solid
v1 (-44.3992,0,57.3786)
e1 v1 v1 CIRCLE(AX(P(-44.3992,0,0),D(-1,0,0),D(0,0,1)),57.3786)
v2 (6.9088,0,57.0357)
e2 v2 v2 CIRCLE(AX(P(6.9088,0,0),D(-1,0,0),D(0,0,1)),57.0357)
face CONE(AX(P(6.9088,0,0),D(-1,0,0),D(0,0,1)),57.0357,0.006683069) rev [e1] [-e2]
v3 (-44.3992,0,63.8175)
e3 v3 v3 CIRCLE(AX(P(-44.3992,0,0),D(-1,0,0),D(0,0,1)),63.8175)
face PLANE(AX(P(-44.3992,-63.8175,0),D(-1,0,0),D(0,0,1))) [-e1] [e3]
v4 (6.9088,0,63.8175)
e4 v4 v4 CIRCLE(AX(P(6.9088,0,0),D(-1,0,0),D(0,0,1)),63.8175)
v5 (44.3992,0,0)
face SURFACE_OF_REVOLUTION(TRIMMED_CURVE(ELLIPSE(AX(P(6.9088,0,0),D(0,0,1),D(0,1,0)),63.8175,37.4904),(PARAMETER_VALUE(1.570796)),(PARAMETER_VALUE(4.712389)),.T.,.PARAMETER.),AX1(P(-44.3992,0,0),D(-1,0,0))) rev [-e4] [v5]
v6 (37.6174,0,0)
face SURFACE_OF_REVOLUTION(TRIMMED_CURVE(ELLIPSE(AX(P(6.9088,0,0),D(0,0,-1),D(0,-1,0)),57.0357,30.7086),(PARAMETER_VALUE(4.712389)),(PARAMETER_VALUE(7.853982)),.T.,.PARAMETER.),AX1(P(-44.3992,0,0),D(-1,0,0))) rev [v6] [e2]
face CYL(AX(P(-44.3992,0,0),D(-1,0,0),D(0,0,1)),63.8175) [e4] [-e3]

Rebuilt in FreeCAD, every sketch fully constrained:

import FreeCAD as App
import Part
import Sketcher
Q = App.Units.Quantity

doc = App.newDocument("Part")
body = doc.addObject("PartDesign::Body", "Body")

# Sketch on XY plane
sketch1 = doc.addObject("Sketcher::SketchObject", "Sketch")
body.addObject(sketch1)
sketch1.AttachmentSupport = (doc.XY_Plane, [""])
sketch1.MapMode = "FlatFace"
sketch1.addGeometry(Part.LineSegment(App.Vector(44.3992, 0, 0), App.Vector(37.6174, 0, 0)), False)
sketch1.addGeometry(Part.BSplineCurve([App.Vector(6.9088, -57.0357, 0), App.Vector(37.6174, -57.0357, 0), App.Vector(37.6174, 0, 0)], [3, 3], [0, 1.570796327], False, 2, [1, 0.707106781, 1], False), False)
sketch1.addGeometry(Part.LineSegment(App.Vector(6.9088, -57.0357, 0), App.Vector(-44.3992, -57.3786, 0)), False)
sketch1.addGeometry(Part.LineSegment(App.Vector(-44.3992, -57.3786, 0), App.Vector(-44.3992, -63.8175, 0)), False)
sketch1.addGeometry(Part.LineSegment(App.Vector(-44.3992, -63.8175, 0), App.Vector(6.9088, -63.8175, 0)), False)
sketch1.addGeometry(Part.BSplineCurve([App.Vector(6.9088, -63.8175, 0), App.Vector(44.3992, -63.8175, 0), App.Vector(44.3992, 0, 0)], [3, 3], [3.141592654, 4.71238898], False, 2, [1, 0.707106781, 1], False), False)
sketch1.addConstraint(Sketcher.Constraint("Block", 1))
sketch1.addConstraint(Sketcher.Constraint("Block", 5))
sketch1.addConstraint(Sketcher.Constraint("Coincident", 0, 2, 1, 2))
sketch1.addConstraint(Sketcher.Constraint("Coincident", 1, 1, 2, 1))
sketch1.addConstraint(Sketcher.Constraint("Coincident", 2, 2, 3, 1))
sketch1.addConstraint(Sketcher.Constraint("Coincident", 3, 2, 4, 1))
sketch1.addConstraint(Sketcher.Constraint("Coincident", 4, 2, 5, 1))
sketch1.addConstraint(Sketcher.Constraint("Coincident", 5, 2, 0, 1))
sketch1.addConstraint(Sketcher.Constraint("Vertical", 3))
sketch1.addConstraint(Sketcher.Constraint("Horizontal", 4))
sketch1.addConstraint(Sketcher.Constraint("DistanceX", 4, 1, 4, 2, Q("2.02 in")))
sketch1.addConstraint(Sketcher.Constraint("DistanceY", 3, 2, 3, 1, Q("0.2535 in")))
revolution = doc.addObject("PartDesign::Revolution", "Revolution")
body.addObject(revolution)
revolution.Profile = sketch1
revolution.ReferenceAxis = (sketch1, ["H_Axis"])
revolution.Angle = 360

doc.recompute()
